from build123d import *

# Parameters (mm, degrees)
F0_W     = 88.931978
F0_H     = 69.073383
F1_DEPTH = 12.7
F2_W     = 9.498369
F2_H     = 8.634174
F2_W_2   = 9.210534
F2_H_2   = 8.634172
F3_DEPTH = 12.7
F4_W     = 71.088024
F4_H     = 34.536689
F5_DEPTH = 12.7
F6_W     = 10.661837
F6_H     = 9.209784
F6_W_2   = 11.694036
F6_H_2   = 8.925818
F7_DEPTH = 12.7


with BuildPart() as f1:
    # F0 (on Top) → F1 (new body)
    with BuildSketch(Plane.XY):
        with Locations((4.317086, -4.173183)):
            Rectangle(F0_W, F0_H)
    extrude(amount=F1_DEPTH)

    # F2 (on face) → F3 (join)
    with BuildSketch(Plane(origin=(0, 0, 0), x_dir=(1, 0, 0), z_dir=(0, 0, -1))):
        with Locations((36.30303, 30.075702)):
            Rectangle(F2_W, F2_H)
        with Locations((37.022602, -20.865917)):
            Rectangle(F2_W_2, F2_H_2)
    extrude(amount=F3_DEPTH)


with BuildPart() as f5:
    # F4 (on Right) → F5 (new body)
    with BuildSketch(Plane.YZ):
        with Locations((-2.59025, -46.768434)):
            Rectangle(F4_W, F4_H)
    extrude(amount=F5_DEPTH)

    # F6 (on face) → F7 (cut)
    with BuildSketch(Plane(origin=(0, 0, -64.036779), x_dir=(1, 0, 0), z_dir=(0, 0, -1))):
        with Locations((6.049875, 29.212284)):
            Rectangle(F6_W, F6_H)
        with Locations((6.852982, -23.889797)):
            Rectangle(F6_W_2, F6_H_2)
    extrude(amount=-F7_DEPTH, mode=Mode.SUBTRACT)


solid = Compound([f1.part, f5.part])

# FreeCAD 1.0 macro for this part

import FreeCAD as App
import Part
import Sketcher

V = App.Vector
Q = App.Units.Quantity


def add_polygon(sketch, points):
    """Adds a closed chain of lines whose ends are joined by coincident constraints."""
    first, n = sketch.GeometryCount, len(points)
    for a, b in zip(points, points[1:] + points[:1]):
        sketch.addGeometry(Part.LineSegment(App.Vector(*a, 0), App.Vector(*b, 0)), False)
    for i in range(n):
        sketch.addConstraint(Sketcher.Constraint("Coincident", first + i, 2, first + (i + 1) % n, 1))

doc = App.newDocument("Part")
body = doc.addObject("PartDesign::Body", "Body")

sketch1 = body.newObject("Sketcher::SketchObject", "Sketch")
sketch1.AttachmentSupport = (doc.getObject("XY_Plane"), [""])
sketch1.MapMode = "FlatFace"
add_polygon(sketch1, [(-40.148903, 30.363508), (-40.148903, -38.709874), (48.783075, -38.709874), (48.783075, 30.363508)])
sketch1.addConstraint(Sketcher.Constraint("Vertical", 0))
sketch1.addConstraint(Sketcher.Constraint("Horizontal", 1))
sketch1.addConstraint(Sketcher.Constraint("Vertical", 2))
sketch1.addConstraint(Sketcher.Constraint("Horizontal", 3))
sketch1.addConstraint(Sketcher.Constraint("DistanceX", 1, 1, 1, 2, 88.931978))
sketch1.addConstraint(Sketcher.Constraint("DistanceY", 0, 2, 0, 1, 69.073383))
sketch1.addConstraint(Sketcher.Constraint("DistanceY", -1, 1, 2, 2, 30.363508))
sketch1.addConstraint(Sketcher.Constraint("DistanceX", 0, 2, -1, 1, 40.148903))
pad1 = body.newObject("PartDesign::Pad", "Pad")
pad1.Profile = sketch1
pad1.Length = Q("0.5 in")

sketch2 = body.newObject("Sketcher::SketchObject", "Sketch001")
sketch2.AttachmentSupport = (doc.getObject("XY_Plane"), [""])
sketch2.MapMode = "FlatFace"
add_polygon(sketch2, [(31.553846, -34.392789), (31.553846, -25.758615), (41.052214, -25.758615), (41.052214, -34.392789)])
add_polygon(sketch2, [(32.417335, 16.548831), (32.417335, 25.183003), (41.627869, 25.183003), (41.627869, 16.548831)])
sketch2.addConstraint(Sketcher.Constraint("Vertical", 0))
sketch2.addConstraint(Sketcher.Constraint("Horizontal", 1))
sketch2.addConstraint(Sketcher.Constraint("Vertical", 2))
sketch2.addConstraint(Sketcher.Constraint("Horizontal", 3))
sketch2.addConstraint(Sketcher.Constraint("Vertical", 4))
sketch2.addConstraint(Sketcher.Constraint("Horizontal", 5))
sketch2.addConstraint(Sketcher.Constraint("Vertical", 6))
sketch2.addConstraint(Sketcher.Constraint("Horizontal", 7))
sketch2.addConstraint(Sketcher.Constraint("DistanceX", 1, 1, 1, 2, 9.498369))
sketch2.addConstraint(Sketcher.Constraint("DistanceX", 5, 1, 5, 2, 9.210534))
sketch2.addConstraint(Sketcher.Constraint("DistanceY", 0, 1, 0, 2, 8.634174))
sketch2.addConstraint(Sketcher.Constraint("DistanceY", 4, 1, 4, 2, 8.634172))
sketch2.addConstraint(Sketcher.Constraint("DistanceY", 2, 2, -1, 1, 34.392789))
sketch2.addConstraint(Sketcher.Constraint("DistanceX", -1, 1, 5, 2, 41.627869))
sketch2.addConstraint(Sketcher.Constraint("DistanceY", -1, 1, 6, 2, 16.548831))
sketch2.addConstraint(Sketcher.Constraint("DistanceX", 0, 2, 4, 2, 0.86349))
pad2 = body.newObject("PartDesign::Pad", "Pad001")
pad2.Profile = sketch2
pad2.Length = Q("0.5 in")
pad2.Reversed = True
body2 = doc.addObject("PartDesign::Body", "Body001")

sketch3 = body2.newObject("Sketcher::SketchObject", "Sketch002")
sketch3.AttachmentSupport = (doc.getObject("YZ_Plane001"), [""])
sketch3.MapMode = "FlatFace"
add_polygon(sketch3, [(-38.134262, -29.50009), (-38.134262, -64.036778), (32.953762, -64.036778), (32.953762, -29.50009)])
sketch3.addConstraint(Sketcher.Constraint("Vertical", 0))
sketch3.addConstraint(Sketcher.Constraint("Horizontal", 1))
sketch3.addConstraint(Sketcher.Constraint("Vertical", 2))
sketch3.addConstraint(Sketcher.Constraint("Horizontal", 3))
sketch3.addConstraint(Sketcher.Constraint("DistanceY", 0, 2, 0, 1, 34.536689))
sketch3.addConstraint(Sketcher.Constraint("DistanceX", 1, 1, 1, 2, 71.088024))
sketch3.addConstraint(Sketcher.Constraint("DistanceY", 0, 2, -1, 1, 64.036778))
sketch3.addConstraint(Sketcher.Constraint("DistanceX", -1, 1, 1, 2, 32.953762))
pad3 = body2.newObject("PartDesign::Pad", "Pad002")
pad3.Profile = sketch3
pad3.Length = Q("0.5 in")

sketch4 = body2.newObject("Sketcher::SketchObject", "Sketch003")
sketch4.AttachmentSupport = (doc.getObject("XY_Plane001"), [""])
sketch4.MapMode = "FlatFace"
sketch4.AttachmentOffset = App.Placement(V(0, 0, -64.036779), App.Rotation())
add_polygon(sketch4, [(0.718956, -33.817176), (0.718956, -24.607392), (11.380793, -24.607392), (11.380793, -33.817176)])
add_polygon(sketch4, [(1.005964, 19.426888), (1.005964, 28.352706), (12.7, 28.352706), (12.7, 19.426888)])
sketch4.addConstraint(Sketcher.Constraint("Vertical", 0))
sketch4.addConstraint(Sketcher.Constraint("Horizontal", 1))
sketch4.addConstraint(Sketcher.Constraint("Vertical", 2))
sketch4.addConstraint(Sketcher.Constraint("Horizontal", 3))
sketch4.addConstraint(Sketcher.Constraint("Vertical", 4))
sketch4.addConstraint(Sketcher.Constraint("Horizontal", 5))
sketch4.addConstraint(Sketcher.Constraint("Vertical", 6))
sketch4.addConstraint(Sketcher.Constraint("Horizontal", 7))
sketch4.addConstraint(Sketcher.Constraint("DistanceX", -1, 1, 5, 2, Q("0.5 in")))
sketch4.addConstraint(Sketcher.Constraint("DistanceY", 0, 2, 4, 2, 52.960098))
sketch4.addConstraint(Sketcher.Constraint("DistanceX", 1, 1, 1, 2, 10.661837))
sketch4.addConstraint(Sketcher.Constraint("DistanceX", 5, 1, 5, 2, 11.694036))
sketch4.addConstraint(Sketcher.Constraint("DistanceY", 0, 1, 0, 2, 9.209784))
sketch4.addConstraint(Sketcher.Constraint("DistanceY", 4, 1, 4, 2, 8.925818))
sketch4.addConstraint(Sketcher.Constraint("DistanceY", -1, 1, 6, 2, 19.426888))
sketch4.addConstraint(Sketcher.Constraint("DistanceX", 4, 2, 1, 2, 10.374829))
pocket1 = body2.newObject("PartDesign::Pocket", "Pocket")
pocket1.Profile = sketch4
pocket1.Length = Q("0.5 in")
pocket1.Reversed = True

doc.recompute()
